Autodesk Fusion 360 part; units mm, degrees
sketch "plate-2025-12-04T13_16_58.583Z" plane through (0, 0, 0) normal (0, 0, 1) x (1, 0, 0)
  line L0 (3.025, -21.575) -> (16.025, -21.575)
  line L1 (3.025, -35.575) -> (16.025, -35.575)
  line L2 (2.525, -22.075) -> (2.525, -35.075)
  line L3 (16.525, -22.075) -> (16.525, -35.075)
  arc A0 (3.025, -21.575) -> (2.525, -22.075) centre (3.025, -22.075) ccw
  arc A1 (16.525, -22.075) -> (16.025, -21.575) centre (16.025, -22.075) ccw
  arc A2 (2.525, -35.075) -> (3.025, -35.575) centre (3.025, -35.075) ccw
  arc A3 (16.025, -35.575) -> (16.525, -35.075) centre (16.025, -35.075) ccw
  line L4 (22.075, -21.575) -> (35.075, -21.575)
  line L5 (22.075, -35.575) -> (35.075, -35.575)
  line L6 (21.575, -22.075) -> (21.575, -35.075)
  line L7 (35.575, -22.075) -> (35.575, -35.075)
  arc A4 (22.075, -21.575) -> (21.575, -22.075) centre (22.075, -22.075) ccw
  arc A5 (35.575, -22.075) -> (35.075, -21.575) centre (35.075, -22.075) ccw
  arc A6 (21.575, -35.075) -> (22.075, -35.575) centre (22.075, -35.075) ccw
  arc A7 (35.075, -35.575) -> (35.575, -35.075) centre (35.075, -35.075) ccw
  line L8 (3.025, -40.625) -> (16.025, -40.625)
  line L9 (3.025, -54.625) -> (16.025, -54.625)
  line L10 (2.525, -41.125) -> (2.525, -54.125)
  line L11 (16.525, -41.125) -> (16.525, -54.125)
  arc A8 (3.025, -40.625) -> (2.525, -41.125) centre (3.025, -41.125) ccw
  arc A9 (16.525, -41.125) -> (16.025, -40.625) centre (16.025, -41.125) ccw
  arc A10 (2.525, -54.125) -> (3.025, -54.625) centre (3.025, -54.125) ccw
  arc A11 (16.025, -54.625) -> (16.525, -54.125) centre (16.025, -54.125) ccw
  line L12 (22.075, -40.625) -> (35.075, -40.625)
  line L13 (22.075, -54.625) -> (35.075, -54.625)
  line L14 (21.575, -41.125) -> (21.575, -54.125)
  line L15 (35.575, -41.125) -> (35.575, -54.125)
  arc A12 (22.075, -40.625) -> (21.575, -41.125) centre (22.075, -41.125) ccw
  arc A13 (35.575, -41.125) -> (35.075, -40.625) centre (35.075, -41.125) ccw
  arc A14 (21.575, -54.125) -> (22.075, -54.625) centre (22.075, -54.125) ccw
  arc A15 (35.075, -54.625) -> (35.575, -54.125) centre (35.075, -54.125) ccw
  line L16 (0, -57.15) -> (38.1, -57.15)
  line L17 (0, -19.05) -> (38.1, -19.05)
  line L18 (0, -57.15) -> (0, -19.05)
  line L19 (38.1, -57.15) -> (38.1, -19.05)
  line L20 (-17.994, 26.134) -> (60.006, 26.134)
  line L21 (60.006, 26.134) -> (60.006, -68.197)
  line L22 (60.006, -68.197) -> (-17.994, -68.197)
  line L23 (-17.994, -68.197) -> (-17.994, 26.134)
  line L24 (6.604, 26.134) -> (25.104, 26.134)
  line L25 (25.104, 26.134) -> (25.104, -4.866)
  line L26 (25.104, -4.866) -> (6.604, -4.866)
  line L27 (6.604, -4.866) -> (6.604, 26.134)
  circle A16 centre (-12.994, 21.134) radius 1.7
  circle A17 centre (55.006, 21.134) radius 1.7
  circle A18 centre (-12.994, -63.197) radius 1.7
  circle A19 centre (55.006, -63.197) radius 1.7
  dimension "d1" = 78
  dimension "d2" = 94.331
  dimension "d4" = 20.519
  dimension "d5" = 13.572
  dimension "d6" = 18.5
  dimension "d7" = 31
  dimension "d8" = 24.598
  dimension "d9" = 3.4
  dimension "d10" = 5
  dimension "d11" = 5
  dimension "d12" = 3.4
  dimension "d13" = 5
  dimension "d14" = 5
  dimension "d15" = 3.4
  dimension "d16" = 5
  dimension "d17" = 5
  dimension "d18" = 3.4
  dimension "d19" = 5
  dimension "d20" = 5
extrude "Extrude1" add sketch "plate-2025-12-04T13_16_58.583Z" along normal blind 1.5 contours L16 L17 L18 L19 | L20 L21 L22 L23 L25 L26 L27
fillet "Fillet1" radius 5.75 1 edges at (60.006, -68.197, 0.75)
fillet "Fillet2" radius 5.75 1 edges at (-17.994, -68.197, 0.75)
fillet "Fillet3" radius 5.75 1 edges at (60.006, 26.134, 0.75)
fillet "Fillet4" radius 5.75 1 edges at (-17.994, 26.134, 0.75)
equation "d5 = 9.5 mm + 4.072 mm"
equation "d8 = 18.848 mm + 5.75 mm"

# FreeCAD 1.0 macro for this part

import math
import FreeCAD as App
import Part
import Sketcher


def edges_at(feature, points):
    """Names of the edges that pass closest to the given points."""
    edges = feature.Shape.Edges
    near = lambda p: min(range(len(edges)), key=lambda i: edges[i].distToShape(Part.Vertex(*p))[0])
    return sorted({f"Edge{near(p) + 1}" for p in points})

doc = App.newDocument("Part")
params = doc.addObject("Spreadsheet::Sheet", "Params")
for row, (alias, value) in enumerate([
    ("sketch1_diameter", "3.4 mm"),
    ("sketch1_width", "78 mm"),
    ("sketch1_height", "31 mm"),
    ("sketch1_width2", "18.5 mm"),
    ("sketch1_radius", "0.5 mm"),
    ("pad1_length", "1.5 mm"),
    ("fillet_radius", "5.75 mm"),
    ("fillet2_radius", "5.75 mm"),
    ("fillet3_radius", "5.75 mm"),
    ("fillet4_radius", "5.75 mm"),
], start=1):
    params.set(f"A{row}", alias)
    params.set(f"B{row}", "=" + value)
    params.setAlias(f"B{row}", alias)

body = doc.addObject("PartDesign::Body", "Body")

# Sketch on XY plane
sketch1 = body.newObject("Sketcher::SketchObject", "Sketch")
sketch1.AttachmentSupport = (doc.getObject("XY_Plane"), [""])
sketch1.MapMode = "FlatFace"
sketch1.addGeometry(Part.LineSegment(App.Vector(6.6, 26.1, 0), App.Vector(-18, 26.1, 0)), False)
sketch1.addGeometry(Part.LineSegment(App.Vector(-18, 26.1, 0), App.Vector(-18, -68.2, 0)), False)
sketch1.addGeometry(Part.LineSegment(App.Vector(-18, -68.2, 0), App.Vector(60, -68.2, 0)), False)
sketch1.addGeometry(Part.LineSegment(App.Vector(60, -68.2, 0), App.Vector(60, 26.1, 0)), False)
sketch1.addGeometry(Part.LineSegment(App.Vector(60, 26.1, 0), App.Vector(25.1, 26.1, 0)), False)
sketch1.addGeometry(Part.LineSegment(App.Vector(25.1, 26.1, 0), App.Vector(25.1, -4.9, 0)), False)
sketch1.addGeometry(Part.LineSegment(App.Vector(25.1, -4.9, 0), App.Vector(6.6, -4.9, 0)), False)
sketch1.addGeometry(Part.LineSegment(App.Vector(6.6, -4.9, 0), App.Vector(6.6, 26.1, 0)), False)
sketch1.addGeometry(Part.ArcOfCircle(Part.Circle(App.Vector(3, -41.1, 0), App.Vector(0, 0, 1), 0.5), math.radians(90), math.radians(180)), False)
sketch1.addGeometry(Part.LineSegment(App.Vector(3, -40.6, 0), App.Vector(16, -40.6, 0)), False)
sketch1.addGeometry(Part.ArcOfCircle(Part.Circle(App.Vector(16, -41.1, 0), App.Vector(0, 0, 1), 0.5), math.radians(0), math.radians(90)), False)
sketch1.addGeometry(Part.LineSegment(App.Vector(16.5, -41.1, 0), App.Vector(16.5, -54.1, 0)), False)
sketch1.addGeometry(Part.ArcOfCircle(Part.Circle(App.Vector(16, -54.1, 0), App.Vector(0, 0, 1), 0.5), math.radians(-90), math.radians(0)), False)
sketch1.addGeometry(Part.LineSegment(App.Vector(16, -54.6, 0), App.Vector(3, -54.6, 0)), False)
sketch1.addGeometry(Part.ArcOfCircle(Part.Circle(App.Vector(3, -54.1, 0), App.Vector(0, 0, 1), 0.5), math.radians(180), math.radians(270)), False)
sketch1.addGeometry(Part.LineSegment(App.Vector(2.5, -54.1, 0), App.Vector(2.5, -41.1, 0)), False)
sketch1.addGeometry(Part.ArcOfCircle(Part.Circle(App.Vector(3, -22.1, 0), App.Vector(0, 0, 1), 0.5), math.radians(90), math.radians(180)), False)
sketch1.addGeometry(Part.LineSegment(App.Vector(3, -21.6, 0), App.Vector(16, -21.6, 0)), False)
sketch1.addGeometry(Part.ArcOfCircle(Part.Circle(App.Vector(16, -22.1, 0), App.Vector(0, 0, 1), 0.5), math.radians(0), math.radians(90)), False)
sketch1.addGeometry(Part.LineSegment(App.Vector(16.5, -22.1, 0), App.Vector(16.5, -35.1, 0)), False)
sketch1.addGeometry(Part.ArcOfCircle(Part.Circle(App.Vector(16, -35.1, 0), App.Vector(0, 0, 1), 0.5), math.radians(-90), math.radians(0)), False)
sketch1.addGeometry(Part.LineSegment(App.Vector(16, -35.6, 0), App.Vector(3, -35.6, 0)), False)
sketch1.addGeometry(Part.ArcOfCircle(Part.Circle(App.Vector(3, -35.1, 0), App.Vector(0, 0, 1), 0.5), math.radians(180), math.radians(270)), False)
sketch1.addGeometry(Part.LineSegment(App.Vector(2.5, -35.1, 0), App.Vector(2.5, -22.1, 0)), False)
sketch1.addGeometry(Part.ArcOfCircle(Part.Circle(App.Vector(22.1, -41.1, 0), App.Vector(0, 0, 1), 0.5), math.radians(90), math.radians(180)), False)
sketch1.addGeometry(Part.LineSegment(App.Vector(22.1, -40.6, 0), App.Vector(35.1, -40.6, 0)), False)
sketch1.addGeometry(Part.ArcOfCircle(Part.Circle(App.Vector(35.1, -41.1, 0), App.Vector(0, 0, 1), 0.5), math.radians(0), math.radians(90)), False)
sketch1.addGeometry(Part.LineSegment(App.Vector(35.6, -41.1, 0), App.Vector(35.6, -54.1, 0)), False)
sketch1.addGeometry(Part.ArcOfCircle(Part.Circle(App.Vector(35.1, -54.1, 0), App.Vector(0, 0, 1), 0.5), math.radians(-90), math.radians(0)), False)
sketch1.addGeometry(Part.LineSegment(App.Vector(35.1, -54.6, 0), App.Vector(22.1, -54.6, 0)), False)
sketch1.addGeometry(Part.ArcOfCircle(Part.Circle(App.Vector(22.1, -54.1, 0), App.Vector(0, 0, 1), 0.5), math.radians(180), math.radians(270)), False)
sketch1.addGeometry(Part.LineSegment(App.Vector(21.6, -54.1, 0), App.Vector(21.6, -41.1, 0)), False)
sketch1.addGeometry(Part.ArcOfCircle(Part.Circle(App.Vector(22.1, -22.1, 0), App.Vector(0, 0, 1), 0.5), math.radians(90), math.radians(180)), False)
sketch1.addGeometry(Part.LineSegment(App.Vector(22.1, -21.6, 0), App.Vector(35.1, -21.6, 0)), False)
sketch1.addGeometry(Part.ArcOfCircle(Part.Circle(App.Vector(35.1, -22.1, 0), App.Vector(0, 0, 1), 0.5), math.radians(0), math.radians(90)), False)
sketch1.addGeometry(Part.LineSegment(App.Vector(35.6, -22.1, 0), App.Vector(35.6, -35.1, 0)), False)
sketch1.addGeometry(Part.ArcOfCircle(Part.Circle(App.Vector(35.1, -35.1, 0), App.Vector(0, 0, 1), 0.5), math.radians(-90), math.radians(0)), False)
sketch1.addGeometry(Part.LineSegment(App.Vector(35.1, -35.6, 0), App.Vector(22.1, -35.6, 0)), False)
sketch1.addGeometry(Part.ArcOfCircle(Part.Circle(App.Vector(22.1, -35.1, 0), App.Vector(0, 0, 1), 0.5), math.radians(180), math.radians(270)), False)
sketch1.addGeometry(Part.LineSegment(App.Vector(21.6, -35.1, 0), App.Vector(21.6, -22.1, 0)), False)
sketch1.addGeometry(Part.Circle(App.Vector(-13, -63.2, 0), App.Vector(0, 0, 1), 1.7), False)
sketch1.addGeometry(Part.Circle(App.Vector(55, 21.1, 0), App.Vector(0, 0, 1), 1.7), False)
sketch1.addGeometry(Part.Circle(App.Vector(55, -63.2, 0), App.Vector(0, 0, 1), 1.7), False)
sketch1.addGeometry(Part.Circle(App.Vector(-13, 21.1, 0), App.Vector(0, 0, 1), 1.7), False)
sketch1.addConstraint(Sketcher.Constraint("Coincident", 0, 2, 1, 1))
sketch1.addConstraint(Sketcher.Constraint("Coincident", 1, 2, 2, 1))
sketch1.addConstraint(Sketcher.Constraint("Coincident", 2, 2, 3, 1))
sketch1.addConstraint(Sketcher.Constraint("Coincident", 3, 2, 4, 1))
sketch1.addConstraint(Sketcher.Constraint("Coincident", 4, 2, 5, 1))
sketch1.addConstraint(Sketcher.Constraint("Coincident", 5, 2, 6, 1))
sketch1.addConstraint(Sketcher.Constraint("Coincident", 6, 2, 7, 1))
sketch1.addConstraint(Sketcher.Constraint("Coincident", 7, 2, 0, 1))
sketch1.addConstraint(Sketcher.Constraint("Tangent", 8, 1, 9, 1))
sketch1.addConstraint(Sketcher.Constraint("Tangent", 9, 2, 10, 2))
sketch1.addConstraint(Sketcher.Constraint("Tangent", 10, 1, 11, 1))
sketch1.addConstraint(Sketcher.Constraint("Tangent", 11, 2, 12, 2))
sketch1.addConstraint(Sketcher.Constraint("Tangent", 12, 1, 13, 1))
sketch1.addConstraint(Sketcher.Constraint("Tangent", 13, 2, 14, 2))
sketch1.addConstraint(Sketcher.Constraint("Tangent", 14, 1, 15, 1))
sketch1.addConstraint(Sketcher.Constraint("Tangent", 15, 2, 8, 2))
sketch1.addConstraint(Sketcher.Constraint("Tangent", 16, 1, 17, 1))
sketch1.addConstraint(Sketcher.Constraint("Tangent", 17, 2, 18, 2))
sketch1.addConstraint(Sketcher.Constraint("Tangent", 18, 1, 19, 1))
sketch1.addConstraint(Sketcher.Constraint("Tangent", 19, 2, 20, 2))
sketch1.addConstraint(Sketcher.Constraint("Tangent", 20, 1, 21, 1))
sketch1.addConstraint(Sketcher.Constraint("Tangent", 21, 2, 22, 2))
sketch1.addConstraint(Sketcher.Constraint("Tangent", 22, 1, 23, 1))
sketch1.addConstraint(Sketcher.Constraint("Tangent", 23, 2, 16, 2))
sketch1.addConstraint(Sketcher.Constraint("Tangent", 24, 1, 25, 1))
sketch1.addConstraint(Sketcher.Constraint("Tangent", 25, 2, 26, 2))
sketch1.addConstraint(Sketcher.Constraint("Tangent", 26, 1, 27, 1))
sketch1.addConstraint(Sketcher.Constraint("Tangent", 27, 2, 28, 2))
sketch1.addConstraint(Sketcher.Constraint("Tangent", 28, 1, 29, 1))
sketch1.addConstraint(Sketcher.Constraint("Tangent", 29, 2, 30, 2))
sketch1.addConstraint(Sketcher.Constraint("Tangent", 30, 1, 31, 1))
sketch1.addConstraint(Sketcher.Constraint("Tangent", 31, 2, 24, 2))
sketch1.addConstraint(Sketcher.Constraint("Tangent", 32, 1, 33, 1))
sketch1.addConstraint(Sketcher.Constraint("Tangent", 33, 2, 34, 2))
sketch1.addConstraint(Sketcher.Constraint("Tangent", 34, 1, 35, 1))
sketch1.addConstraint(Sketcher.Constraint("Tangent", 35, 2, 36, 2))
sketch1.addConstraint(Sketcher.Constraint("Tangent", 36, 1, 37, 1))
sketch1.addConstraint(Sketcher.Constraint("Tangent", 37, 2, 38, 2))
sketch1.addConstraint(Sketcher.Constraint("Tangent", 38, 1, 39, 1))
sketch1.addConstraint(Sketcher.Constraint("Tangent", 39, 2, 32, 2))
sketch1.addConstraint(Sketcher.Constraint("Horizontal", 0))
sketch1.addConstraint(Sketcher.Constraint("Vertical", 1))
sketch1.addConstraint(Sketcher.Constraint("Horizontal", 2))
sketch1.addConstraint(Sketcher.Constraint("Vertical", 3))
sketch1.addConstraint(Sketcher.Constraint("Horizontal", 4))
sketch1.addConstraint(Sketcher.Constraint("Vertical", 5))
sketch1.addConstraint(Sketcher.Constraint("Horizontal", 6))
sketch1.addConstraint(Sketcher.Constraint("Vertical", 7))
sketch1.addConstraint(Sketcher.Constraint("Horizontal", 9))
sketch1.addConstraint(Sketcher.Constraint("Vertical", 11))
sketch1.addConstraint(Sketcher.Constraint("Horizontal", 13))
sketch1.addConstraint(Sketcher.Constraint("Vertical", 15))
sketch1.addConstraint(Sketcher.Constraint("Horizontal", 17))
sketch1.addConstraint(Sketcher.Constraint("Vertical", 19))
sketch1.addConstraint(Sketcher.Constraint("Horizontal", 21))
sketch1.addConstraint(Sketcher.Constraint("Vertical", 23))
sketch1.addConstraint(Sketcher.Constraint("Horizontal", 25))
sketch1.addConstraint(Sketcher.Constraint("Vertical", 27))
sketch1.addConstraint(Sketcher.Constraint("Horizontal", 29))
sketch1.addConstraint(Sketcher.Constraint("Vertical", 31))
sketch1.addConstraint(Sketcher.Constraint("Horizontal", 33))
sketch1.addConstraint(Sketcher.Constraint("Vertical", 35))
sketch1.addConstraint(Sketcher.Constraint("Horizontal", 37))
sketch1.addConstraint(Sketcher.Constraint("Vertical", 39))
sketch1.addConstraint(Sketcher.Constraint("Equal", 8, 10))
sketch1.addConstraint(Sketcher.Constraint("Equal", 10, 12))
sketch1.addConstraint(Sketcher.Constraint("Equal", 12, 14))
sketch1.addConstraint(Sketcher.Constraint("Equal", 14, 16))
sketch1.addConstraint(Sketcher.Constraint("Equal", 16, 18))
sketch1.addConstraint(Sketcher.Constraint("Equal", 18, 20))
sketch1.addConstraint(Sketcher.Constraint("Equal", 20, 22))
sketch1.addConstraint(Sketcher.Constraint("Equal", 22, 24))
sketch1.addConstraint(Sketcher.Constraint("Equal", 24, 26))
sketch1.addConstraint(Sketcher.Constraint("Equal", 26, 28))
sketch1.addConstraint(Sketcher.Constraint("Equal", 28, 30))
sketch1.addConstraint(Sketcher.Constraint("Equal", 30, 32))
sketch1.addConstraint(Sketcher.Constraint("Equal", 32, 34))
sketch1.addConstraint(Sketcher.Constraint("Equal", 34, 36))
sketch1.addConstraint(Sketcher.Constraint("Equal", 36, 38))
sketch1.addConstraint(Sketcher.Constraint("Equal", 40, 41))
sketch1.addConstraint(Sketcher.Constraint("Equal", 41, 42))
sketch1.addConstraint(Sketcher.Constraint("Equal", 42, 43))
sketch1.addConstraint(Sketcher.Constraint("Horizontal", 10, 3, 24, 3))
sketch1.addConstraint(Sketcher.Constraint("Horizontal", 14, 3, 28, 3))
sketch1.addConstraint(Sketcher.Constraint("Horizontal", 18, 3, 32, 3))
sketch1.addConstraint(Sketcher.Constraint("Horizontal", 22, 3, 36, 3))
sketch1.addConstraint(Sketcher.Constraint("Horizontal", 40, 3, 42, 3))
sketch1.addConstraint(Sketcher.Constraint("Horizontal", 41, 3, 43, 3))
sketch1.addConstraint(Sketcher.Constraint("Horizontal", 0, 2, 3, 2))
sketch1.addConstraint(Sketcher.Constraint("Vertical", 14, 3, 16, 3))
sketch1.addConstraint(Sketcher.Constraint("Vertical", 12, 3, 18, 3))
sketch1.addConstraint(Sketcher.Constraint("Vertical", 30, 3, 32, 3))
sketch1.addConstraint(Sketcher.Constraint("Vertical", 28, 3, 34, 3))
sketch1.addConstraint(Sketcher.Constraint("Vertical", 41, 3, 42, 3))
sketch1.addConstraint(Sketcher.Constraint("Vertical", 40, 3, 43, 3))
sketch1.addConstraint(Sketcher.Constraint("Equal", 21, 25))
sketch1.addConstraint(Sketcher.Constraint("Equal", 37, 11))
sketch1.addConstraint(Sketcher.Constraint("Equal", 15, 19))
sketch1.addConstraint(Sketcher.Constraint("Diameter", 40, 3.4))
sketch1.addConstraint(Sketcher.Constraint("DistanceX", 2, 1, 2, 2, 78.0))
sketch1.addConstraint(Sketcher.Constraint("DistanceY", 5, 2, 5, 1, 31.0))
sketch1.addConstraint(Sketcher.Constraint("DistanceX", 6, 2, 6, 1, 18.5))
sketch1.addConstraint(Sketcher.Constraint("DistanceX", 0, 2, 43, 3, 5.0))
sketch1.addConstraint(Sketcher.Constraint("DistanceY", 43, 3, 0, 2, 5.0))
sketch1.addConstraint(Sketcher.Constraint("DistanceY", 1, 2, 40, 3, 5.0))
sketch1.addConstraint(Sketcher.Constraint("DistanceX", 42, 3, 2, 2, 5.0))
sketch1.addConstraint(Sketcher.Constraint("Radius", 8, 0.5))
sketch1.addConstraint(Sketcher.Constraint("DistanceX", 0, 2, 0, 1, 24.598))
sketch1.addConstraint(Sketcher.Constraint("DistanceX", 9, 1, 9, 2, 13.0))
sketch1.addConstraint(Sketcher.Constraint("DistanceY", 1, 2, 1, 1, 94.331))
sketch1.addConstraint(Sketcher.Constraint("DistanceY", 8, 3, 16, 3, 19.05))
sketch1.addConstraint(Sketcher.Constraint("DistanceX", 10, 3, 24, 3, 6.05))
sketch1.addConstraint(Sketcher.Constraint("DistanceX", -1, 1, 8, 3, 3.025))
sketch1.addConstraint(Sketcher.Constraint("DistanceY", 8, 3, -1, 1, 41.125))
sketch1.addConstraint(Sketcher.Constraint("DistanceX", 40, 3, -1, 1, 12.994))
sketch1.addConstraint(Sketcher.Constraint("DistanceY", 40, 3, -1, 1, 63.197))
sketch1.setExpression("Constraints[98]", "Params.sketch1_diameter")
sketch1.setExpression("Constraints[99]", "Params.sketch1_width")
sketch1.setExpression("Constraints[100]", "Params.sketch1_height")
sketch1.setExpression("Constraints[101]", "Params.sketch1_width2")
sketch1.setExpression("Constraints[106]", "Params.sketch1_radius")
pad1 = body.newObject("PartDesign::Pad", "Pad")
pad1.Profile = sketch1
pad1.setExpression("Length", "Params.pad1_length")
doc.recompute()

fillet = body.newObject("PartDesign::Fillet", "Fillet")
fillet.Base = (pad1, edges_at(pad1, [(60.006, -68.197, 0.75)]))
fillet.setExpression("Radius", "Params.fillet_radius")
doc.recompute()

fillet2 = body.newObject("PartDesign::Fillet", "Fillet001")
fillet2.Base = (fillet, edges_at(fillet, [(-17.994, -68.197, 0.75)]))
fillet2.setExpression("Radius", "Params.fillet2_radius")
doc.recompute()

fillet3 = body.newObject("PartDesign::Fillet", "Fillet002")
fillet3.Base = (fillet2, edges_at(fillet2, [(60.006, 26.134, 0.75)]))
fillet3.setExpression("Radius", "Params.fillet3_radius")
doc.recompute()

fillet4 = body.newObject("PartDesign::Fillet", "Fillet003")
fillet4.Base = (fillet3, edges_at(fillet3, [(-17.994, 26.134, 0.75)]))
fillet4.setExpression("Radius", "Params.fillet4_radius")

doc.recompute()
